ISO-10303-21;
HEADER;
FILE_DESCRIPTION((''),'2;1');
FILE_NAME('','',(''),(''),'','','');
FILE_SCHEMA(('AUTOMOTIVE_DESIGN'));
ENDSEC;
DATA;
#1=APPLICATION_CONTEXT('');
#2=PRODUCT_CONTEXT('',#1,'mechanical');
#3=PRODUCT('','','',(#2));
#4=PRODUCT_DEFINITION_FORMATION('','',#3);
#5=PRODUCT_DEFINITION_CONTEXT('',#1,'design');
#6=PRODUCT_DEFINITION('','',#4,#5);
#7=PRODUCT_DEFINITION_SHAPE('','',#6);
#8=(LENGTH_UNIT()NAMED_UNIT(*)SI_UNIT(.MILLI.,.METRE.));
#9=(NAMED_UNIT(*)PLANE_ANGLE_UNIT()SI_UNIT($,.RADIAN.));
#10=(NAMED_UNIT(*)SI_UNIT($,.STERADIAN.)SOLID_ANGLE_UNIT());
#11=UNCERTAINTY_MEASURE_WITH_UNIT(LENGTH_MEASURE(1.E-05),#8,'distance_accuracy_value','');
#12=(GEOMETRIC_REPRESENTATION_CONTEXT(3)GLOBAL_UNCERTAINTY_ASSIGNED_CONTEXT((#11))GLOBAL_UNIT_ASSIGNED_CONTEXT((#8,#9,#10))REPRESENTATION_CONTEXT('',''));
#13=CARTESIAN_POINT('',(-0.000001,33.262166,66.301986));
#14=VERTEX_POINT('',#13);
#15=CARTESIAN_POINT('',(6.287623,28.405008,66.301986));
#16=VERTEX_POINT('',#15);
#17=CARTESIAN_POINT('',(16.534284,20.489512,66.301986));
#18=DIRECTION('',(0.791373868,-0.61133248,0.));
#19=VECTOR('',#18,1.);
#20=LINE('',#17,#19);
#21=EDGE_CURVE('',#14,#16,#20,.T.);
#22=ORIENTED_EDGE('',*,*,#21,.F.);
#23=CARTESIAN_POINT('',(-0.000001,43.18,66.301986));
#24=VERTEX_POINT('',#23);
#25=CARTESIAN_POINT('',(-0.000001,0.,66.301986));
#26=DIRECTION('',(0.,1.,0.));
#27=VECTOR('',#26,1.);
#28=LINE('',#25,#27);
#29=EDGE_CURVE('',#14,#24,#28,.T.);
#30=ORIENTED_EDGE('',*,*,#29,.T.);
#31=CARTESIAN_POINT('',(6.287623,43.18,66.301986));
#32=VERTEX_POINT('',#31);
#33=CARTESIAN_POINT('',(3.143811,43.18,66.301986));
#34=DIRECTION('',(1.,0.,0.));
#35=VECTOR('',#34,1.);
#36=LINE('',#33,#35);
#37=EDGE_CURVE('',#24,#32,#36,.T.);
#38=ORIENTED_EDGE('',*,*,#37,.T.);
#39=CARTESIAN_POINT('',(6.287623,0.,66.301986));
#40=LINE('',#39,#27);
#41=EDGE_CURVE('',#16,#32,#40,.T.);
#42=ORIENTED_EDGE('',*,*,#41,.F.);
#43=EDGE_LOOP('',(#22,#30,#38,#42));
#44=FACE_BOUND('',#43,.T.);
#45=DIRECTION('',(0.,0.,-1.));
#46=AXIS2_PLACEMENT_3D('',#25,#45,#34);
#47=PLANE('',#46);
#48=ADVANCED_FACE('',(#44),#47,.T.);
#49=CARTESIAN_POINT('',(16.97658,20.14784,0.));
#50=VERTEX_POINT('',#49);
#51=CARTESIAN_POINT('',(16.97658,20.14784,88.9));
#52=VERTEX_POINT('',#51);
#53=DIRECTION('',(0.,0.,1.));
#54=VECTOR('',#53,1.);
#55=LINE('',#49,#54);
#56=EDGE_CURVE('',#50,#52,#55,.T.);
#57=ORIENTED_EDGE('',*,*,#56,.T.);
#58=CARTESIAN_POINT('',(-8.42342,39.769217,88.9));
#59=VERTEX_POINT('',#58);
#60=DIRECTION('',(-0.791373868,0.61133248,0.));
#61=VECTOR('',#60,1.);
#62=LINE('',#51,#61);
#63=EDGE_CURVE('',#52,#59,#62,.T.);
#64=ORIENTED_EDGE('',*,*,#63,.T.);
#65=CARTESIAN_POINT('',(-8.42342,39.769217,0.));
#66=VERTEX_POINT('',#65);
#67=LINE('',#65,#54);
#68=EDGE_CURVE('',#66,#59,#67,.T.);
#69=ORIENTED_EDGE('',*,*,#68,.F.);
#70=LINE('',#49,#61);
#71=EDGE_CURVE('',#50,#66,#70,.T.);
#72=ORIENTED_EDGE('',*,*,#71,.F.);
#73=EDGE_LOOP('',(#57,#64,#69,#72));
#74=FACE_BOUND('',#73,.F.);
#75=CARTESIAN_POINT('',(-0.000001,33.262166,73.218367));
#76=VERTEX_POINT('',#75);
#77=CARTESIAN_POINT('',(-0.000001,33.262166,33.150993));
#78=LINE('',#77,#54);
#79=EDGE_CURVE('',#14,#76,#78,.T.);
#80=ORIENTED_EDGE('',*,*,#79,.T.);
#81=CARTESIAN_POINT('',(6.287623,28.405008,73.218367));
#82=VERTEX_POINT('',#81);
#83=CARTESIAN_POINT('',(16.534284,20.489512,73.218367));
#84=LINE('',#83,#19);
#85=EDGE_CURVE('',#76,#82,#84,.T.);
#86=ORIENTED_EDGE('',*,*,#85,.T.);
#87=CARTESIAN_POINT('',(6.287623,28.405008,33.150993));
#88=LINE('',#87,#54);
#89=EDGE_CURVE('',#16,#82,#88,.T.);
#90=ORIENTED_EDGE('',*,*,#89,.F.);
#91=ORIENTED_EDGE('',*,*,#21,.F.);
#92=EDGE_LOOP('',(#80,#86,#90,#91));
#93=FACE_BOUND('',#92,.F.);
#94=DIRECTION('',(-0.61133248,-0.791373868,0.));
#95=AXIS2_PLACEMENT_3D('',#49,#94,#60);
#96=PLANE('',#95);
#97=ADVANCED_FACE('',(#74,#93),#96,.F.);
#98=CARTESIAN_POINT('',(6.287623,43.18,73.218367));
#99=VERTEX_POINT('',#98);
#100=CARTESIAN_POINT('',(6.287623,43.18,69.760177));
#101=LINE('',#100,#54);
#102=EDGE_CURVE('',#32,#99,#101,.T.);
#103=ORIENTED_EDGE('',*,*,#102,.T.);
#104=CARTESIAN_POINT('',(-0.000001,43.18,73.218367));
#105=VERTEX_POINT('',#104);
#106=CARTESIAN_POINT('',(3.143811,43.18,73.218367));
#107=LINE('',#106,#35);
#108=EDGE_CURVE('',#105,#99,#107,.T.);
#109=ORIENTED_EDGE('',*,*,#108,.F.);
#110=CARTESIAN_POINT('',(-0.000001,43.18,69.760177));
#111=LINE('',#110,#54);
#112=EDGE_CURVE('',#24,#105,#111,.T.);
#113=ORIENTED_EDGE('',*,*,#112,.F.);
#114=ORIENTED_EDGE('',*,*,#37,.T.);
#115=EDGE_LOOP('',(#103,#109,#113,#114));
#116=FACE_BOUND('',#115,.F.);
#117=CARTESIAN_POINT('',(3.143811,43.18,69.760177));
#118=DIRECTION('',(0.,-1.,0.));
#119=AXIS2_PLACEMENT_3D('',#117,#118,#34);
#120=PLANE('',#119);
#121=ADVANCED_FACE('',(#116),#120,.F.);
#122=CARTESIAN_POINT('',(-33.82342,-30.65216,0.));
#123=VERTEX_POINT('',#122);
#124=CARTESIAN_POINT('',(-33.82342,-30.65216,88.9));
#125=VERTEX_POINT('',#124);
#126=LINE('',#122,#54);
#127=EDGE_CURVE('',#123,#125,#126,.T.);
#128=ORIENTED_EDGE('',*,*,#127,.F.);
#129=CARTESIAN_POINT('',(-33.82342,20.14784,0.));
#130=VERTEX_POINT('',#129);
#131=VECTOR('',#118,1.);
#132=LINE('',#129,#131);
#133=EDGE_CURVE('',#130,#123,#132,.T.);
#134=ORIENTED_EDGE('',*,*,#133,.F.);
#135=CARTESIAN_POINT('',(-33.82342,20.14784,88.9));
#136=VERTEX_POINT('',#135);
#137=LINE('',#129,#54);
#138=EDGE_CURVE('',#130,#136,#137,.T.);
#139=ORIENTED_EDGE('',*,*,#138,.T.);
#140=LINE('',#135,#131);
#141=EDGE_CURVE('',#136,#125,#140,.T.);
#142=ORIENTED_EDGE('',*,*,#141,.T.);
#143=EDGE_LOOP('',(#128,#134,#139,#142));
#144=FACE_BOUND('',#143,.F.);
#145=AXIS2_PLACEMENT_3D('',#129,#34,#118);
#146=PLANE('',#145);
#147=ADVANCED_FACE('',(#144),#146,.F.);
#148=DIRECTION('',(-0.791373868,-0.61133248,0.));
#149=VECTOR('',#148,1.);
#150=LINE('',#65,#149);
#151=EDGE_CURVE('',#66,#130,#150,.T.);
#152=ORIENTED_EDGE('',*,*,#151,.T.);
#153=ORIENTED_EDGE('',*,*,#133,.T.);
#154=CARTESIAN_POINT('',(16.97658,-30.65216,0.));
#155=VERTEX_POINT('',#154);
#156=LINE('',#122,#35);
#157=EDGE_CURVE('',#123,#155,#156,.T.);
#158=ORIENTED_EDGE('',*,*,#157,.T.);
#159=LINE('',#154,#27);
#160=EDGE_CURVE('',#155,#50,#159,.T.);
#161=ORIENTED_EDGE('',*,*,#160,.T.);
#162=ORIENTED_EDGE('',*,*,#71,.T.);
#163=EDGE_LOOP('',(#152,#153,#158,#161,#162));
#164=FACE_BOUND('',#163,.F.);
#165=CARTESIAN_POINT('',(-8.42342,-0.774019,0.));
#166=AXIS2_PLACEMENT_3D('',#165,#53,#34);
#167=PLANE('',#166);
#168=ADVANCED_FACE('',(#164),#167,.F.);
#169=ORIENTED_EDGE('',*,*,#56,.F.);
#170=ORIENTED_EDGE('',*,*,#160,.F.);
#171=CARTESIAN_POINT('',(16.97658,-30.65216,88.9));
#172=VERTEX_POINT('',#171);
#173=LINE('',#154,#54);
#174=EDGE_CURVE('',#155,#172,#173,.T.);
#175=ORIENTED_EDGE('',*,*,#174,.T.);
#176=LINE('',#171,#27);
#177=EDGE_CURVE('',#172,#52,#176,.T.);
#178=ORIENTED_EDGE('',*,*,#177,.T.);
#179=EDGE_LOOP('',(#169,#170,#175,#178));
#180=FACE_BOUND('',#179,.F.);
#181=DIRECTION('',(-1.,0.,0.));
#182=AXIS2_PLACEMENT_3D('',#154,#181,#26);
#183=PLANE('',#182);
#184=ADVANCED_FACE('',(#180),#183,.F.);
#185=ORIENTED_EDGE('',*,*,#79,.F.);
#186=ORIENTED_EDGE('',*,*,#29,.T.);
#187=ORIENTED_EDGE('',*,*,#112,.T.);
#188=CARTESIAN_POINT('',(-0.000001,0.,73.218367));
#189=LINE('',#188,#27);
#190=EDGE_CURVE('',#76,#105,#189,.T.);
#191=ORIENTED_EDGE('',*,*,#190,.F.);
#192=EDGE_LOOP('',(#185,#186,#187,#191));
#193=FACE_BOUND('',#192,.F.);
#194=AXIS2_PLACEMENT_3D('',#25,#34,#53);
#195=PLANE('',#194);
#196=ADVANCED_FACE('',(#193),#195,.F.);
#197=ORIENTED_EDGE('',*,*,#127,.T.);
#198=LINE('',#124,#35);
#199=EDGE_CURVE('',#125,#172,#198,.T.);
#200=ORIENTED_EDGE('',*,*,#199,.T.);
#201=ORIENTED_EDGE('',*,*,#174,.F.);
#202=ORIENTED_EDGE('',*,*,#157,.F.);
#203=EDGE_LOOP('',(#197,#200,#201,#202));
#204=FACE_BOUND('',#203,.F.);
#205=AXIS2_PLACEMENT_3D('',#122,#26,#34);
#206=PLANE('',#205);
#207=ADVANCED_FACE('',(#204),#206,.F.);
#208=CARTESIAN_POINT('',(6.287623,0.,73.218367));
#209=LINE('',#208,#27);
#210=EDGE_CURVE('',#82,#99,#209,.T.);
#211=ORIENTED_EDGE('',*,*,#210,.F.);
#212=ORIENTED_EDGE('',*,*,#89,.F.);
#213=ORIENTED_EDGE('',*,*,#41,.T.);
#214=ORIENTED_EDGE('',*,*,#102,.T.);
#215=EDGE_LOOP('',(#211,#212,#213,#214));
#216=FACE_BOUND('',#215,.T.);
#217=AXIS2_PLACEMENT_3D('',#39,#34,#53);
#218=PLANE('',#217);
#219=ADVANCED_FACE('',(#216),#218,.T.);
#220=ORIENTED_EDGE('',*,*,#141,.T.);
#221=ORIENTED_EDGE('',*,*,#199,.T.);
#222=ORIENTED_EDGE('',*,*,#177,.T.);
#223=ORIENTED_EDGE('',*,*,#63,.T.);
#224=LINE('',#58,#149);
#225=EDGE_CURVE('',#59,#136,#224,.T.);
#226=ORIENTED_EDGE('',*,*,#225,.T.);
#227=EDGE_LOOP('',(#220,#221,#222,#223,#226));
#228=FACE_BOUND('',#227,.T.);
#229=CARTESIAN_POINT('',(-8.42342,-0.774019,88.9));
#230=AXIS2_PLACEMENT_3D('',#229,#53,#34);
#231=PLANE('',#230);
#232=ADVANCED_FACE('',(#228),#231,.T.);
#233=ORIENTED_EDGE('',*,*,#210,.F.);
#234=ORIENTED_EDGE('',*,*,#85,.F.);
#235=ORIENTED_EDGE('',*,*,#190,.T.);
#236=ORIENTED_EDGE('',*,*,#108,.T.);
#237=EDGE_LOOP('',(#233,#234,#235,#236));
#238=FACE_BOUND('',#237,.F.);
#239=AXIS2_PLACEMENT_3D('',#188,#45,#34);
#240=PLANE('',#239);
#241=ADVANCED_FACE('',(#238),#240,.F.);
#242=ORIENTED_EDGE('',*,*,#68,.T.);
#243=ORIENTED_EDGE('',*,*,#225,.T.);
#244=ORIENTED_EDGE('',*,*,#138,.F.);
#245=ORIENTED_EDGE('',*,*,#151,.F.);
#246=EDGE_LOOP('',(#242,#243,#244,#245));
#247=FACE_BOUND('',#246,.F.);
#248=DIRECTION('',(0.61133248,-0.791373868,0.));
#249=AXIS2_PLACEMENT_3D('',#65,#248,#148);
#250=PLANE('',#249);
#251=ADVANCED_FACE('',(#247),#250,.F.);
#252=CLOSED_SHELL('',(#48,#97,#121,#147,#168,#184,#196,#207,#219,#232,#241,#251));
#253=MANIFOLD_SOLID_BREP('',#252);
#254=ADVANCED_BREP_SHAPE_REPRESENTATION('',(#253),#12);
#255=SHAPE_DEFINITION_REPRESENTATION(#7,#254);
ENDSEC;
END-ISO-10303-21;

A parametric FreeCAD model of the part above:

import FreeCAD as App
import Part
import Sketcher
from FreeCAD import Vector
Q = App.Units.Quantity

doc = App.newDocument("Part")
body = doc.addObject("PartDesign::Body", "Body")

# Sketch on XY plane
sketch1 = body.newObject("Sketcher::SketchObject", "Sketch")
sketch1.AttachmentSupport = (doc.getObject("XY_Plane"), [""])
sketch1.MapMode = "FlatFace"
sketch1.addGeometry(Part.LineSegment(Vector(-34, 20, 0), Vector(-34, -31, 0)), False)
sketch1.addGeometry(Part.LineSegment(Vector(-34, -31, 0), Vector(17, -31, 0)), False)
sketch1.addGeometry(Part.LineSegment(Vector(17, -31, 0), Vector(17, 20, 0)), False)
sketch1.addGeometry(Part.LineSegment(Vector(17, 20, 0), Vector(-8, 40, 0)), False)
sketch1.addGeometry(Part.LineSegment(Vector(-8, 40, 0), Vector(-34, 20, 0)), False)
sketch1.addConstraint(Sketcher.Constraint("Coincident", 0, 2, 1, 1))
sketch1.addConstraint(Sketcher.Constraint("Coincident", 1, 2, 2, 1))
sketch1.addConstraint(Sketcher.Constraint("Coincident", 2, 2, 3, 1))
sketch1.addConstraint(Sketcher.Constraint("Coincident", 3, 2, 4, 1))
sketch1.addConstraint(Sketcher.Constraint("Coincident", 4, 2, 0, 1))
sketch1.addConstraint(Sketcher.Constraint("Vertical", 0))
sketch1.addConstraint(Sketcher.Constraint("Horizontal", 1))
sketch1.addConstraint(Sketcher.Constraint("Vertical", 2))
sketch1.addConstraint(Sketcher.Constraint("Horizontal", 2, 2, 4, 2))
sketch1.addConstraint(Sketcher.Constraint("Equal", 1, 0))
sketch1.addConstraint(Sketcher.Constraint("Equal", 3, 4))
sketch1.addConstraint(Sketcher.Constraint("DistanceX", 1, 1, 1, 2, Q("2 in")))
sketch1.addConstraint(Sketcher.Constraint("Distance", 3, Q("32.096081 mm")))
sketch1.addConstraint(Sketcher.Constraint("DistanceX", 0, 2, -1, 1, Q("33.82342 mm")))
sketch1.addConstraint(Sketcher.Constraint("DistanceY", 0, 2, -1, 1, Q("30.65216 mm")))
pad1 = body.newObject("PartDesign::Pad", "Pad")
pad1.Profile = sketch1
pad1.Length = Q("3.5 in")

# Sketch on XZ plane
sketch2 = body.newObject("Sketcher::SketchObject", "Sketch001")
sketch2.AttachmentSupport = (doc.getObject("XZ_Plane"), [""])
sketch2.MapMode = "FlatFace"
sketch2.addGeometry(Part.LineSegment(Vector(0, 73, 0), Vector(0, 66, 0)), False)
sketch2.addGeometry(Part.LineSegment(Vector(0, 66, 0), Vector(6, 66, 0)), False)
sketch2.addGeometry(Part.LineSegment(Vector(6, 66, 0), Vector(6, 73, 0)), False)
sketch2.addGeometry(Part.LineSegment(Vector(6, 73, 0), Vector(0, 73, 0)), False)
sketch2.addConstraint(Sketcher.Constraint("Coincident", 0, 2, 1, 1))
sketch2.addConstraint(Sketcher.Constraint("Coincident", 1, 2, 2, 1))
sketch2.addConstraint(Sketcher.Constraint("Coincident", 2, 2, 3, 1))
sketch2.addConstraint(Sketcher.Constraint("Coincident", 3, 2, 0, 1))
sketch2.addConstraint(Sketcher.Constraint("Vertical", 0))
sketch2.addConstraint(Sketcher.Constraint("Horizontal", 1))
sketch2.addConstraint(Sketcher.Constraint("Vertical", 2))
sketch2.addConstraint(Sketcher.Constraint("Horizontal", 3))
sketch2.addConstraint(Sketcher.Constraint("PointOnObject", 0, 2, -2))
sketch2.addConstraint(Sketcher.Constraint("DistanceY", 0, 2, 0, 1, Q("6.916381 mm")))
sketch2.addConstraint(Sketcher.Constraint("DistanceX", 1, 1, 1, 2, Q("6.287623 mm")))
sketch2.addConstraint(Sketcher.Constraint("DistanceY", -1, 1, 0, 2, Q("66.301986 mm")))
pad2 = body.newObject("PartDesign::Pad", "Pad001")
pad2.Profile = sketch2
pad2.Length = Q("1.7 in")
pad2.Reversed = True

doc.recompute()
